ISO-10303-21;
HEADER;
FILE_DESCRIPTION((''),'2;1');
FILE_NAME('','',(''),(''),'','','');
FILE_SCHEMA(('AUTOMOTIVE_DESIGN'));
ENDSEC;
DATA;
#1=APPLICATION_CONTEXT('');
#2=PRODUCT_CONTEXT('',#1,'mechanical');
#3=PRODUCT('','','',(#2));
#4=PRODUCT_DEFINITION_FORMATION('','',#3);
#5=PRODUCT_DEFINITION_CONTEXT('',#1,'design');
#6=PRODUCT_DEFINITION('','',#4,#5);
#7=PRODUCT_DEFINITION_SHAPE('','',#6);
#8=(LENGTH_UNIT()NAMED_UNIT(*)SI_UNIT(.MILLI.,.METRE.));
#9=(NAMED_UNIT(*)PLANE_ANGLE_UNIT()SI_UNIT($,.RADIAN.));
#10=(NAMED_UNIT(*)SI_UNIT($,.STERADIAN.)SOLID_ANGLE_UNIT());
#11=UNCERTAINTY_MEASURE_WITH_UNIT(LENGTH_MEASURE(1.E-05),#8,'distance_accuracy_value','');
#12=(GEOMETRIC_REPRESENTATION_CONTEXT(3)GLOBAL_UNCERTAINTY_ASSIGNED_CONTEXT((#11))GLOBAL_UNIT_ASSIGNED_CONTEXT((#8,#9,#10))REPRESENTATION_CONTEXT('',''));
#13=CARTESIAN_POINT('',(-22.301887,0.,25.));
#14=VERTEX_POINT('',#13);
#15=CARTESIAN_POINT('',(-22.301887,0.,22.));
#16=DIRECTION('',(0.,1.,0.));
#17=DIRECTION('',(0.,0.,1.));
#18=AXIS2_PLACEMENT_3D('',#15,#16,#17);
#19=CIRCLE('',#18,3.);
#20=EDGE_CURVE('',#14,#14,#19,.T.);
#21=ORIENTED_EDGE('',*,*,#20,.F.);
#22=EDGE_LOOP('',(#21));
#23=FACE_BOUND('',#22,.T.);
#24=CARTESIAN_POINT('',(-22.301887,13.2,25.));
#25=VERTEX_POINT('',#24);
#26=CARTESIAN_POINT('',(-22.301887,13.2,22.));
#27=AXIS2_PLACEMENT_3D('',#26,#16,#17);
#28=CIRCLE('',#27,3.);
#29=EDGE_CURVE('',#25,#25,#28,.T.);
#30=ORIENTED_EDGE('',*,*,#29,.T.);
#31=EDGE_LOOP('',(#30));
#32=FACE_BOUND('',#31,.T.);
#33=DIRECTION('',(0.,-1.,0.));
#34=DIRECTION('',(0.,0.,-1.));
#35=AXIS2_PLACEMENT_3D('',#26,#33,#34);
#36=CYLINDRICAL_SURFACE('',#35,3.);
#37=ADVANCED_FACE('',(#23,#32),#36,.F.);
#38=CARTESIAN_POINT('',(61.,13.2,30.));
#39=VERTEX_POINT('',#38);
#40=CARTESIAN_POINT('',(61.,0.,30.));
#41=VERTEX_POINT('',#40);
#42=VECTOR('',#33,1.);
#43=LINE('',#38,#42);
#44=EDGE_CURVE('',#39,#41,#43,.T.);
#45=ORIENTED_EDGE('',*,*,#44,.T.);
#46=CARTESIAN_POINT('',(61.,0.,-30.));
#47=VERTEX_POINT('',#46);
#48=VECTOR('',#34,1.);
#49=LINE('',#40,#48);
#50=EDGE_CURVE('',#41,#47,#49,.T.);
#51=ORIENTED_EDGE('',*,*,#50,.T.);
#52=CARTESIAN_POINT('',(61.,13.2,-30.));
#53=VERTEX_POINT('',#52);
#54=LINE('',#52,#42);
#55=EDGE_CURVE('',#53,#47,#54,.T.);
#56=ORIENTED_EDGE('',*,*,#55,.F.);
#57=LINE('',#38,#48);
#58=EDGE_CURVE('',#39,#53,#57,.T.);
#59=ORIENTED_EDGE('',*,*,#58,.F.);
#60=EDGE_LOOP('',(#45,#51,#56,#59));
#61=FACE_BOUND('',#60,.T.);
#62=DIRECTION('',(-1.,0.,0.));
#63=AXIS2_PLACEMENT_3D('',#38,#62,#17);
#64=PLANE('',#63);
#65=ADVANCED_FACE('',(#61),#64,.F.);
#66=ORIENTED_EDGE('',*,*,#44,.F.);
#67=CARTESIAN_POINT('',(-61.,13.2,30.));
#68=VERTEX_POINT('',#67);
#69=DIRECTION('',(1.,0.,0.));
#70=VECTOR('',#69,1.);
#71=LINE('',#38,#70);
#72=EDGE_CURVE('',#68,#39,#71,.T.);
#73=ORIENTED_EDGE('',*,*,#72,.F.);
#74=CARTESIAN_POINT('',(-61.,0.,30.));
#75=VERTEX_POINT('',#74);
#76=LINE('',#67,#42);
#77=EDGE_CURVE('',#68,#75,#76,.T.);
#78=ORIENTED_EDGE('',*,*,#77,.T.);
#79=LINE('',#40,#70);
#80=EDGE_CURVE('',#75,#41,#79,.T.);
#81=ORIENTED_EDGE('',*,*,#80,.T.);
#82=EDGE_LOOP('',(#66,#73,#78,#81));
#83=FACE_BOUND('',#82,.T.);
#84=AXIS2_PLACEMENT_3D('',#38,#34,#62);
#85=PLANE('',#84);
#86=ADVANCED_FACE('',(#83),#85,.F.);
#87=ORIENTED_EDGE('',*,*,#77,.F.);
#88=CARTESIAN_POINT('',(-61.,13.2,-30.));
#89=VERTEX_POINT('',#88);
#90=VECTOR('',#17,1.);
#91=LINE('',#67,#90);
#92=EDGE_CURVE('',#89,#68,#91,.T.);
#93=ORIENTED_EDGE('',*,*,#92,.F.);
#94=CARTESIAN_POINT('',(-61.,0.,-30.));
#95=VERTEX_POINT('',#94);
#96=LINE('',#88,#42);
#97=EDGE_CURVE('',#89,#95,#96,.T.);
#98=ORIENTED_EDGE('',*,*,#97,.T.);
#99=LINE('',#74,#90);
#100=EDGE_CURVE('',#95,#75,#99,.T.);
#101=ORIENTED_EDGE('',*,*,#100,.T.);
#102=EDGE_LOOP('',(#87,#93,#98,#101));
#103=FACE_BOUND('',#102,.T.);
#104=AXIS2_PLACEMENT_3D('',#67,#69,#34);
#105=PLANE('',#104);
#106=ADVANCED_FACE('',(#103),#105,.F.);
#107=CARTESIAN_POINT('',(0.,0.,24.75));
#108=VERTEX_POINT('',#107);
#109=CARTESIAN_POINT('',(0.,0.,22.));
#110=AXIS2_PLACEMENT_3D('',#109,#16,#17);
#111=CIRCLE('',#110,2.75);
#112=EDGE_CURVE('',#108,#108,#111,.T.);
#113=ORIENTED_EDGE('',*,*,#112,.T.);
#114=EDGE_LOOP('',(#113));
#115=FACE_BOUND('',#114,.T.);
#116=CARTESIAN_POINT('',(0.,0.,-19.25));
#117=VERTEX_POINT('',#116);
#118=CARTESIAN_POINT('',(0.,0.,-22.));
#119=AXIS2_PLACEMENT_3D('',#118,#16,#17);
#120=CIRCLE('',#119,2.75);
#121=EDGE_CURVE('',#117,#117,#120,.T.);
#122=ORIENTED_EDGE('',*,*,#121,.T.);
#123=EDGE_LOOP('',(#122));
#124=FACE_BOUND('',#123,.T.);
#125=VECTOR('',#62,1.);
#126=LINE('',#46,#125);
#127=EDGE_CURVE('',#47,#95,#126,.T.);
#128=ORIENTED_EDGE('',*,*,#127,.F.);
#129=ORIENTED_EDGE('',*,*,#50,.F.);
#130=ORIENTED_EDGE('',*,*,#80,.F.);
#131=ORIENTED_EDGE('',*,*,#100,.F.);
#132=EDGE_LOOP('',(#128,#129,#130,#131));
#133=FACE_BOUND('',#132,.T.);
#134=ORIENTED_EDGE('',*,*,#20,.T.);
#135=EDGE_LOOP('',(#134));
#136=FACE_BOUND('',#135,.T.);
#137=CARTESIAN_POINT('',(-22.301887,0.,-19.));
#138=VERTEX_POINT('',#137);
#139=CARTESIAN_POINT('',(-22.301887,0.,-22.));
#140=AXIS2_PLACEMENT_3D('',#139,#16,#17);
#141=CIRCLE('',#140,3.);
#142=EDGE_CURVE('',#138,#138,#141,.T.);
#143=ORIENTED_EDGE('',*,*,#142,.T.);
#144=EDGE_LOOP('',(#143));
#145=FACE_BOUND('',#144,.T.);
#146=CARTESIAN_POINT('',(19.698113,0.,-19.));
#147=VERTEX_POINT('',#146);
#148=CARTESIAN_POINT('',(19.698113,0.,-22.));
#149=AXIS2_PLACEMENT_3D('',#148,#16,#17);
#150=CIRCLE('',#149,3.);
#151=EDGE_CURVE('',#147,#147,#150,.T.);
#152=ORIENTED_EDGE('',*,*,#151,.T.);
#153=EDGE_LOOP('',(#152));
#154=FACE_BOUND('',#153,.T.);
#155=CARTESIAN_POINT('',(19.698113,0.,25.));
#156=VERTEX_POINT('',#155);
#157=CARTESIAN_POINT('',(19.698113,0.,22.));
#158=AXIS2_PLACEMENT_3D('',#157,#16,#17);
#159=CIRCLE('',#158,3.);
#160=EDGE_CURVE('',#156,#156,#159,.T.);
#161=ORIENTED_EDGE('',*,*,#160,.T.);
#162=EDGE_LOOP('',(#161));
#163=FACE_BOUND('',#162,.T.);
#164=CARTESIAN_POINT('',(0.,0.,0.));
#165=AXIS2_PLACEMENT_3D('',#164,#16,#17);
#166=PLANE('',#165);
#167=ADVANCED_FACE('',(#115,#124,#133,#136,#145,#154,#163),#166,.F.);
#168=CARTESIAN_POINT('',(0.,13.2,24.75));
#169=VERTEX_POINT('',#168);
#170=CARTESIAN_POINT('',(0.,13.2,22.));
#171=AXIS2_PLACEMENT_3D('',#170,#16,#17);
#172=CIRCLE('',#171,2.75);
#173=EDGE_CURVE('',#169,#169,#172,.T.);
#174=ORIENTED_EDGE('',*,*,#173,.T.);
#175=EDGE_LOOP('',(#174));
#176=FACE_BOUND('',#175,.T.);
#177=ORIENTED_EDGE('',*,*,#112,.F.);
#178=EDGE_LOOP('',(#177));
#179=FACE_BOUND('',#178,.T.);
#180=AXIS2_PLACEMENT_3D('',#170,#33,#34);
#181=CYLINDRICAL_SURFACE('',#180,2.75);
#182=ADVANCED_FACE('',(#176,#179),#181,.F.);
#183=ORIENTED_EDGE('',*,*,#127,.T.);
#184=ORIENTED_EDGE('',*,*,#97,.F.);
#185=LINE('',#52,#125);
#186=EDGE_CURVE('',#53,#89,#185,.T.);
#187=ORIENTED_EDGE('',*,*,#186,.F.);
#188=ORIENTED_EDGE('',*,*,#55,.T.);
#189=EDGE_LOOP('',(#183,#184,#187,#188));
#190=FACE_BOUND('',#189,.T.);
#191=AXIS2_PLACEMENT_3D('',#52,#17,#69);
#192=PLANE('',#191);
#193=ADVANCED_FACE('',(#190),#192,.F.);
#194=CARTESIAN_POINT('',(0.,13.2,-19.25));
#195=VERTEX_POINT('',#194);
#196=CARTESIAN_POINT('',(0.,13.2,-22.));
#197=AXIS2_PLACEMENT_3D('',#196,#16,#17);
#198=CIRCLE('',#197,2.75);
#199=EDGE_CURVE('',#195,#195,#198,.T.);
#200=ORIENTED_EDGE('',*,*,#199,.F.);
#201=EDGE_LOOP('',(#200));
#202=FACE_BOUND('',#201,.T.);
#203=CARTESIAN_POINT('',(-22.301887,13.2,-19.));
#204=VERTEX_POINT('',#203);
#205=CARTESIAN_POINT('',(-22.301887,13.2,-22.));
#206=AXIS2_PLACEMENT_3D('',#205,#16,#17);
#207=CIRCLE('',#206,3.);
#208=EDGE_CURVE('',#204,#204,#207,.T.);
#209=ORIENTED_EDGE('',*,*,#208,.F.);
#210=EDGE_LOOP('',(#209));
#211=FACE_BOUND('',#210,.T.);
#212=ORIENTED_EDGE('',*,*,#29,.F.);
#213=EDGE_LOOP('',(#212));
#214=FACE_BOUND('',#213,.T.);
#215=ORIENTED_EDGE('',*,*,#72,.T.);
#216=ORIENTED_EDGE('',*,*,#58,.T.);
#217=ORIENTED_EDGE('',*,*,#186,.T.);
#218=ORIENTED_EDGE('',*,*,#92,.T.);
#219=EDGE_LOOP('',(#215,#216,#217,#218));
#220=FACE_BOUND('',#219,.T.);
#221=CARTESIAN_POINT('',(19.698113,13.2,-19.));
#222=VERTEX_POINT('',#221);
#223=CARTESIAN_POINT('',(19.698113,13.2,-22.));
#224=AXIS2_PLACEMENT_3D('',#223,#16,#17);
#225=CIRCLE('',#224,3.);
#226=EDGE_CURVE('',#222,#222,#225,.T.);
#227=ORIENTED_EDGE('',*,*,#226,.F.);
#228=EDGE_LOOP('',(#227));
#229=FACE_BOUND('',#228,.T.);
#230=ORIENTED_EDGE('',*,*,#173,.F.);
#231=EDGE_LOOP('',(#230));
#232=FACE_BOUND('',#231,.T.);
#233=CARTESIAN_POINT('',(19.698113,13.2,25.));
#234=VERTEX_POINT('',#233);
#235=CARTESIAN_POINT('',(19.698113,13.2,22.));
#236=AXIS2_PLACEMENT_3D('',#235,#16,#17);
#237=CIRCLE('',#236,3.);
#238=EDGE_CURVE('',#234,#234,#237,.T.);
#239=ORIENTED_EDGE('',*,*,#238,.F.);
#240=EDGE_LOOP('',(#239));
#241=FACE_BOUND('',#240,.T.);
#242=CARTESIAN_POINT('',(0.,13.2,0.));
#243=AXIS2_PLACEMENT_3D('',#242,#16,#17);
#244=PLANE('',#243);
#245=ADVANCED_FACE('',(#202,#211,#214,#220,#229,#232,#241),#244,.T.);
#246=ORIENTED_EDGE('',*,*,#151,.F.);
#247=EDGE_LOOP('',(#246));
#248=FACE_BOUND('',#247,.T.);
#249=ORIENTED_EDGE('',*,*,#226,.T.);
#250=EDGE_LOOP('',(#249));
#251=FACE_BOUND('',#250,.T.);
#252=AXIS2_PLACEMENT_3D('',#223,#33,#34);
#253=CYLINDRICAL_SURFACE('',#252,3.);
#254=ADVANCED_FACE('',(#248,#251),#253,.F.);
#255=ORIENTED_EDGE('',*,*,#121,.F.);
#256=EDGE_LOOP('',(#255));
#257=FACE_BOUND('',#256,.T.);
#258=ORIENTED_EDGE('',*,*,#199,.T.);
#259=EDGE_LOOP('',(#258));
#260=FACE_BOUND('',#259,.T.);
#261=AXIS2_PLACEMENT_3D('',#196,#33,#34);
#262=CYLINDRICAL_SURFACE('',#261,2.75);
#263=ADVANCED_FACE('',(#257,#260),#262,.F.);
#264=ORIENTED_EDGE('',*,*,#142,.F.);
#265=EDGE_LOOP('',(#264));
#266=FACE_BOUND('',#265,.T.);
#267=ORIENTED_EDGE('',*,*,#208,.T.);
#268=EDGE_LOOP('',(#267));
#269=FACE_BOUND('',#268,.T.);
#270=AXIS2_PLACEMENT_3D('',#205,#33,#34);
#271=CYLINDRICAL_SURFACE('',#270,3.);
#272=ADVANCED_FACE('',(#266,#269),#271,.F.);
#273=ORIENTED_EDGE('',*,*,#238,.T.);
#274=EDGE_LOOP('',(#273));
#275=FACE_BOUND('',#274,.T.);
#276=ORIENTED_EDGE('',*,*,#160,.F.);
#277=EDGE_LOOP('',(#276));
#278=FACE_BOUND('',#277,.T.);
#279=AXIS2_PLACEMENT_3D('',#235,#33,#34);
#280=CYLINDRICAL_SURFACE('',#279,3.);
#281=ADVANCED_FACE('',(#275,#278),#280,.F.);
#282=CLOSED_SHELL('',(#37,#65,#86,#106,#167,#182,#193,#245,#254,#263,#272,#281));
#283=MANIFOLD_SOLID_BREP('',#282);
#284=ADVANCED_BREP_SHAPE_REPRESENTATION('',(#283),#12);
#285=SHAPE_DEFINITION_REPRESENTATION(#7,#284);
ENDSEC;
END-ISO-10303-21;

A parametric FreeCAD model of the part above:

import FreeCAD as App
import Part
import Sketcher
Q = App.Units.Quantity


def add_polygon(sketch, points):
    """Adds a closed chain of lines whose ends are joined by coincident constraints."""
    first, n = sketch.GeometryCount, len(points)
    for a, b in zip(points, points[1:] + points[:1]):
        sketch.addGeometry(Part.LineSegment(App.Vector(*a, 0), App.Vector(*b, 0)), False)
    for i in range(n):
        sketch.addConstraint(Sketcher.Constraint("Coincident", first + i, 2, first + (i + 1) % n, 1))

doc = App.newDocument("Part")
body = doc.addObject("PartDesign::Body", "Body")

sketch1 = body.newObject("Sketcher::SketchObject", "Sketch")
sketch1.AttachmentSupport = (doc.getObject("XZ_Plane"), [""])
sketch1.MapMode = "FlatFace"
add_polygon(sketch1, [(-61, -30), (-61, 30), (61, 30), (61, -30)])
sketch1.addGeometry(Part.Circle(App.Vector(-22.301887, 22, 0), App.Vector(0, 0, 1), 3), False)
sketch1.addGeometry(Part.Circle(App.Vector(0, 22, 0), App.Vector(0, 0, 1), 2.75), False)
sketch1.addGeometry(Part.Circle(App.Vector(19.698113, 22, 0), App.Vector(0, 0, 1), 3), False)
sketch1.addGeometry(Part.Circle(App.Vector(-22.301887, -22, 0), App.Vector(0, 0, 1), 3), False)
sketch1.addGeometry(Part.Circle(App.Vector(0, -22, 0), App.Vector(0, 0, 1), 2.75), False)
sketch1.addGeometry(Part.Circle(App.Vector(19.698113, -22, 0), App.Vector(0, 0, 1), 3), False)
sketch1.addConstraint(Sketcher.Constraint("Vertical", 0))
sketch1.addConstraint(Sketcher.Constraint("Horizontal", 1))
sketch1.addConstraint(Sketcher.Constraint("Vertical", 2))
sketch1.addConstraint(Sketcher.Constraint("Horizontal", 3))
sketch1.addConstraint(Sketcher.Constraint("Equal", 4, 6))
sketch1.addConstraint(Sketcher.Constraint("Equal", 6, 7))
sketch1.addConstraint(Sketcher.Constraint("Equal", 5, 8))
sketch1.addConstraint(Sketcher.Constraint("Equal", 7, 9))
sketch1.addConstraint(Sketcher.Constraint("Symmetric", 5, 3, 8, 3, -1, 1))
sketch1.addConstraint(Sketcher.Constraint("Symmetric", 0, 2, 2, 2, -1, 1))
sketch1.addConstraint(Sketcher.Constraint("Symmetric", 4, 3, 7, 3, -1))
sketch1.addConstraint(Sketcher.Constraint("Symmetric", 6, 3, 9, 3, -1))
sketch1.addConstraint(Sketcher.Constraint("PointOnObject", 5, 3, -2))
sketch1.addConstraint(Sketcher.Constraint("Horizontal", 4, 3, 5, 3))
sketch1.addConstraint(Sketcher.Constraint("Horizontal", 5, 3, 6, 3))
sketch1.addConstraint(Sketcher.Constraint("Diameter", 4, Q("6 mm")))
sketch1.addConstraint(Sketcher.Constraint("Diameter", 5, Q("5.5 mm")))
sketch1.addConstraint(Sketcher.Constraint("DistanceX", 1, 1, 1, 2, Q("122 mm")))
sketch1.addConstraint(Sketcher.Constraint("DistanceY", 0, 1, 0, 2, Q("60 mm")))
sketch1.addConstraint(Sketcher.Constraint("DistanceY", -1, 1, 4, 3, Q("22 mm")))
sketch1.addConstraint(Sketcher.Constraint("DistanceX", 4, 3, 6, 3, Q("42 mm")))
sketch1.addConstraint(Sketcher.Constraint("DistanceX", 4, 3, -1, 1, Q("22.301887 mm")))
pad1 = body.newObject("PartDesign::Pad", "Pad")
pad1.Profile = sketch1
pad1.Length = 13.2
pad1.Reversed = True

doc.recompute()
